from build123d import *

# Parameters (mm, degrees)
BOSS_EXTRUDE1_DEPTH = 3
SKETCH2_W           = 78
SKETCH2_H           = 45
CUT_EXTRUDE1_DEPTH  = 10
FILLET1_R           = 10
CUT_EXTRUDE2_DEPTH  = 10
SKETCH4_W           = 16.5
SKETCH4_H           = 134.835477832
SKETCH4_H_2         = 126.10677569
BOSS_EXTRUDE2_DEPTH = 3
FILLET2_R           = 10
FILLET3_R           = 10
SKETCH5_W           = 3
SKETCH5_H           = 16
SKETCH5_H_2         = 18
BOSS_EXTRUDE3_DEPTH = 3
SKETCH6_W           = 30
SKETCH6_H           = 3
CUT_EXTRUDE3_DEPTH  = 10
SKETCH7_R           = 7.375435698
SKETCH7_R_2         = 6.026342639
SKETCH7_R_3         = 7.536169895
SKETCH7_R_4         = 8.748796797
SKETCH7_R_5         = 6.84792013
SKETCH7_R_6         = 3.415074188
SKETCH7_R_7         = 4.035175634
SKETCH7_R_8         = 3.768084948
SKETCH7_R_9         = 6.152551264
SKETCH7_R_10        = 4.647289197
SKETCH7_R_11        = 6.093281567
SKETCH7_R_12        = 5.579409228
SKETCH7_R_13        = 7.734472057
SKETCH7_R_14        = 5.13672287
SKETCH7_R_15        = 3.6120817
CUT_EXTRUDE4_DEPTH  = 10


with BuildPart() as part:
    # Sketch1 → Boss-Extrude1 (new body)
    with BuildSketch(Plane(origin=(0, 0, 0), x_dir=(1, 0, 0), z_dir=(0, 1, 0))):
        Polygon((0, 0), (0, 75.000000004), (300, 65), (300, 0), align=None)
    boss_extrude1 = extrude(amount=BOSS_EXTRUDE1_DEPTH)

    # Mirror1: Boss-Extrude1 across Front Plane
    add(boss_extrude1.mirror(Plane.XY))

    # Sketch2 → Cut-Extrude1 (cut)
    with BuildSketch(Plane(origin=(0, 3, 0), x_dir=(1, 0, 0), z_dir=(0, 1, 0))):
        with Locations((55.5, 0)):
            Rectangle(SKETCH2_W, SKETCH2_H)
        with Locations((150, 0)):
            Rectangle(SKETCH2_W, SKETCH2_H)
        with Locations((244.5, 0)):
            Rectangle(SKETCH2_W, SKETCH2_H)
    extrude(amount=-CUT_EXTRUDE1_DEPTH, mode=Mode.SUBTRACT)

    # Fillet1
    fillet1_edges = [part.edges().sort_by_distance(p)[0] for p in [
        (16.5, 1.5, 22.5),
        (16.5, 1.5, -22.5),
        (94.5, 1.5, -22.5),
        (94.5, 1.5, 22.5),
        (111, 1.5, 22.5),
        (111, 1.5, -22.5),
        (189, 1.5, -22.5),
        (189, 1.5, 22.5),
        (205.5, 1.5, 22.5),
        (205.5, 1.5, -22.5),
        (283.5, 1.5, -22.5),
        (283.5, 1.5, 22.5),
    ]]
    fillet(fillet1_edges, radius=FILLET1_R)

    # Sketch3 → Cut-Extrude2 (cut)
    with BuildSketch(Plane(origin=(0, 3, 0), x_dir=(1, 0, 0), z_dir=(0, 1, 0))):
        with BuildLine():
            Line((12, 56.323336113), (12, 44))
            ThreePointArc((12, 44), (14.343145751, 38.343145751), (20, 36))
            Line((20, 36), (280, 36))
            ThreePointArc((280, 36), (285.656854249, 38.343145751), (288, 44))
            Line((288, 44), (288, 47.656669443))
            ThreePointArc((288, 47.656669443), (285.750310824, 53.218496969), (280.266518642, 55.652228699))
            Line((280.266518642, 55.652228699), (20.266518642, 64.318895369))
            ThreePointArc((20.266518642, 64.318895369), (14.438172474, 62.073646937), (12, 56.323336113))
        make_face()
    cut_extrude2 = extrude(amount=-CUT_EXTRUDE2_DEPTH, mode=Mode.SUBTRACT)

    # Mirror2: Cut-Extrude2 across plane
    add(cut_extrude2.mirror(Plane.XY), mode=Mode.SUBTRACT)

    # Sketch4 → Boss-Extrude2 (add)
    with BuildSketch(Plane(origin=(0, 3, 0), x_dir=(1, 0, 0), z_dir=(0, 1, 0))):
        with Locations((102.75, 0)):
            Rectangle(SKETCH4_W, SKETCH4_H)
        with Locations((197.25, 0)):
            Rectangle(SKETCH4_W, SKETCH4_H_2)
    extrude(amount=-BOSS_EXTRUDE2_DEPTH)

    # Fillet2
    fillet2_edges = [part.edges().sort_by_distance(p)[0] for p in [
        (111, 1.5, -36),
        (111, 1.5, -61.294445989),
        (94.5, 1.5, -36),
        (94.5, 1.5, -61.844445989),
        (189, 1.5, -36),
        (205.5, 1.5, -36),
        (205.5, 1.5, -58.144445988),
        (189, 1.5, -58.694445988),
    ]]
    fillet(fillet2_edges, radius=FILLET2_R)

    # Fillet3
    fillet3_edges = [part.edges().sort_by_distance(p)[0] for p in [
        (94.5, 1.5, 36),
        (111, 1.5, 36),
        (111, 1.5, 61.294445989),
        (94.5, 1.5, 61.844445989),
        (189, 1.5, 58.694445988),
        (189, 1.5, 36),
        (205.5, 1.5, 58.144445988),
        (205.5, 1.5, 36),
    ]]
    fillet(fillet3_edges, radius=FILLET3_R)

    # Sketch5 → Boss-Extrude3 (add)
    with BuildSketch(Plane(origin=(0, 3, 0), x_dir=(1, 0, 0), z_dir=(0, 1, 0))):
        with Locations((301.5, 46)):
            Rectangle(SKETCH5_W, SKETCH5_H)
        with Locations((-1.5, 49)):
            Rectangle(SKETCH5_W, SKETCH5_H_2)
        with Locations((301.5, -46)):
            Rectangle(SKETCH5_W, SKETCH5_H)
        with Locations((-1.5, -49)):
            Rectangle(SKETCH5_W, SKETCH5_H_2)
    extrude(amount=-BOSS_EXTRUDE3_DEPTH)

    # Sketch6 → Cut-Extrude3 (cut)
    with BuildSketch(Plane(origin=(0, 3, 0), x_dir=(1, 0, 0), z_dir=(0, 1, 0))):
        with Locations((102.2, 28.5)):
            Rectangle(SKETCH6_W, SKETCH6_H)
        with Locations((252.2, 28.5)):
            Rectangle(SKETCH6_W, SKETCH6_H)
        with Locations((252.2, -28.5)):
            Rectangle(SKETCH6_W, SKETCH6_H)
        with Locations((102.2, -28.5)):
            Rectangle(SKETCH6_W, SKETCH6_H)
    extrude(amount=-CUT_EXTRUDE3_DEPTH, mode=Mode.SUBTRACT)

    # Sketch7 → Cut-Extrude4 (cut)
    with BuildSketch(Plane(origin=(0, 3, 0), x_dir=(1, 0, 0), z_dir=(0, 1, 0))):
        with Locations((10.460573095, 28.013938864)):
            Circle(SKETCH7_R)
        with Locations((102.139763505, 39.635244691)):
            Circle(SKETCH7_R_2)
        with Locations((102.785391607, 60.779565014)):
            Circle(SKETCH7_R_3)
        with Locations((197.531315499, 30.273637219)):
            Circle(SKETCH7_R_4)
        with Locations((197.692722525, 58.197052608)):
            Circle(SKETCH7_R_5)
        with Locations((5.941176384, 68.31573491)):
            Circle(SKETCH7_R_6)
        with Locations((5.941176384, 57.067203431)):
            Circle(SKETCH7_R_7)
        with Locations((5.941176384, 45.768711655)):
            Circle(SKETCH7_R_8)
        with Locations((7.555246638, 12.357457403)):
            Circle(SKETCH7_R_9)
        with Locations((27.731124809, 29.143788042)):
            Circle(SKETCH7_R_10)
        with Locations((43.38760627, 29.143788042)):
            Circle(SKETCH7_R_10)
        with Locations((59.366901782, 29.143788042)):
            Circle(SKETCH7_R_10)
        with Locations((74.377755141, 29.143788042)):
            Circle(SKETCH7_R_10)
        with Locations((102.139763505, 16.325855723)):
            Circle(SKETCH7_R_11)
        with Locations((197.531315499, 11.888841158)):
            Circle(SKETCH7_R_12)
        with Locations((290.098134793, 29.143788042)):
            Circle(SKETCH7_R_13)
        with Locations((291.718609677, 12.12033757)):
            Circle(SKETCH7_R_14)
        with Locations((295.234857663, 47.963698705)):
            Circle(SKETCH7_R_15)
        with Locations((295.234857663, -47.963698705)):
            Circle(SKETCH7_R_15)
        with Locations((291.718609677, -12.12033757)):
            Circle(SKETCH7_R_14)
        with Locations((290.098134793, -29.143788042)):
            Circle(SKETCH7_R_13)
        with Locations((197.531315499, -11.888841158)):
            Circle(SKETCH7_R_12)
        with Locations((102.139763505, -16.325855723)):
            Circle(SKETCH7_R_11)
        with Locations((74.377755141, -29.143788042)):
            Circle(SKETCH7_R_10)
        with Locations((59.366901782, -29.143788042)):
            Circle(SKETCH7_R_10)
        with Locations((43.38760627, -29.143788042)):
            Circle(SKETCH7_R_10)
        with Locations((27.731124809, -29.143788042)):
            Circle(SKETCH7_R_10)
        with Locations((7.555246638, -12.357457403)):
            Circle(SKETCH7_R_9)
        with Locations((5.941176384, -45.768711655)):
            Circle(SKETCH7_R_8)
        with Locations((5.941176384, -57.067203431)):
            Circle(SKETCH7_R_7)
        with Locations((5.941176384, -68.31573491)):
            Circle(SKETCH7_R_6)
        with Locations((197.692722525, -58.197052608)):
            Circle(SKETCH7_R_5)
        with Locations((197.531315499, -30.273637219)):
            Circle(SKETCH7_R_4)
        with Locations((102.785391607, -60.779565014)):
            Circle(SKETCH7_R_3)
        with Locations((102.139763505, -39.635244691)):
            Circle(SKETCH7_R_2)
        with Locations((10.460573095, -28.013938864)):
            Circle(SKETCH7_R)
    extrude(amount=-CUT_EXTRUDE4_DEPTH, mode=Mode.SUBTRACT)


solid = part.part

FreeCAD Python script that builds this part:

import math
import FreeCAD as App
import Part
import Sketcher


def edges_at(feature, points):
    """Names of the edges that pass closest to the given points."""
    edges = feature.Shape.Edges
    near = lambda p: min(range(len(edges)), key=lambda i: edges[i].distToShape(Part.Vertex(*p))[0])
    return sorted({f"Edge{near(p) + 1}" for p in points})


def add_polygon(sketch, points):
    """Adds a closed chain of lines whose ends are joined by coincident constraints."""
    first, n = sketch.GeometryCount, len(points)
    for a, b in zip(points, points[1:] + points[:1]):
        sketch.addGeometry(Part.LineSegment(App.Vector(*a, 0), App.Vector(*b, 0)), False)
    for i in range(n):
        sketch.addConstraint(Sketcher.Constraint("Coincident", first + i, 2, first + (i + 1) % n, 1))

doc = App.newDocument("Part")
body = doc.addObject("PartDesign::Body", "Body")

# Sketch on XZ plane
sketch1 = body.newObject("Sketcher::SketchObject", "Sketch")
sketch1.AttachmentSupport = (doc.getObject("XZ_Plane"), [""])
sketch1.MapMode = "FlatFace"
add_polygon(sketch1, [(0, -75), (0, 0), (300, 0), (300, -65)])  # lines 0-3
sketch1.addConstraint([
    Sketcher.Constraint("Vertical", 0),
    Sketcher.Constraint("Horizontal", 1),
    Sketcher.Constraint("Vertical", 2),
    Sketcher.Constraint("Coincident", 0, 2, -1, 1),
    Sketcher.Constraint("DistanceX", 1, 1, 1, 2, 300.0),
    Sketcher.Constraint("DistanceY", 0, 1, 0, 2, 75.0),
    Sketcher.Constraint("DistanceY", 2, 2, 2, 1, 65.0),
])
pad1 = body.newObject("PartDesign::Pad", "Pad")
pad1.Profile = sketch1
pad1.Length = 3
pad1.Reversed = True
doc.recompute()

mirrored = body.newObject("PartDesign::Mirrored", "Mirrored")
mirrored.Originals = [pad1]
mirrored.MirrorPlane = (doc.getObject("XY_Plane"), [""])
body.Tip = mirrored

# Sketch on XZ plane
sketch2 = body.newObject("Sketcher::SketchObject", "Sketch001")
sketch2.AttachmentSupport = (doc.getObject("XZ_Plane"), [""])
sketch2.MapMode = "FlatFace"
sketch2.AttachmentOffset = App.Placement(App.Vector(0, 0, -3), App.Rotation())
add_polygon(sketch2, [(16, -22), (16, 22), (94, 22), (94, -22)])  # lines 0-3
add_polygon(sketch2, [(111, -22), (111, 22), (189, 22), (189, -22)])  # lines 4-7
add_polygon(sketch2, [(206, -22), (206, 22), (284, 22), (284, -22)])  # lines 8-11
sketch2.addConstraint([
    Sketcher.Constraint("Vertical", 0),
    Sketcher.Constraint("Horizontal", 1),
    Sketcher.Constraint("Vertical", 2),
    Sketcher.Constraint("Horizontal", 3),
    Sketcher.Constraint("Vertical", 4),
    Sketcher.Constraint("Horizontal", 5),
    Sketcher.Constraint("Vertical", 6),
    Sketcher.Constraint("Horizontal", 7),
    Sketcher.Constraint("Vertical", 8),
    Sketcher.Constraint("Horizontal", 9),
    Sketcher.Constraint("Vertical", 10),
    Sketcher.Constraint("Horizontal", 11),
    Sketcher.Constraint("Horizontal", 1, 2, 4, 2),
    Sketcher.Constraint("Horizontal", 3, 2, 6, 2),
    Sketcher.Constraint("Horizontal", 5, 2, 8, 2),
    Sketcher.Constraint("Horizontal", 7, 2, 10, 2),
    Sketcher.Constraint("Equal", 3, 5),
    Sketcher.Constraint("Equal", 7, 9),
    Sketcher.Constraint("DistanceX", 1, 1, 1, 2, 78.0),
    Sketcher.Constraint("DistanceY", 0, 1, 0, 2, 45.0),
    Sketcher.Constraint("DistanceX", -1, 1, 4, 2, 111.0),
    Sketcher.Constraint("DistanceX", 1, 2, 8, 2, 111.0),
    Sketcher.Constraint("DistanceX", -1, 1, 0, 2, 16.5),
    Sketcher.Constraint("DistanceY", -1, 1, 0, 2, 22.5),
])
pocket1 = body.newObject("PartDesign::Pocket", "Pocket")
pocket1.Profile = sketch2
pocket1.Length = 10
pocket1.Reversed = True
doc.recompute()

fillet = body.newObject("PartDesign::Fillet", "Fillet")
fillet.Base = (pocket1, edges_at(pocket1, [
    (16.5, 1.5, 22.5),
    (16.5, 1.5, -22.5),
    (94.5, 1.5, -22.5),
    (94.5, 1.5, 22.5),
    (111, 1.5, 22.5),
    (111, 1.5, -22.5),
    (189, 1.5, -22.5),
    (189, 1.5, 22.5),
    (205.5, 1.5, 22.5),
    (205.5, 1.5, -22.5),
    (283.5, 1.5, -22.5),
    (283.5, 1.5, 22.5),
]))
fillet.Radius = 10

# Sketch on XZ plane
sketch3 = body.newObject("Sketcher::SketchObject", "Sketch002")
sketch3.AttachmentSupport = (doc.getObject("XZ_Plane"), [""])
sketch3.MapMode = "FlatFace"
sketch3.AttachmentOffset = App.Placement(App.Vector(0, 0, -3), App.Rotation())
sketch3.addGeometry([
    Part.LineSegment(App.Vector(12, -56.3, 0), App.Vector(12, -44, 0)),  # 0
    Part.ArcOfCircle(Part.Circle(App.Vector(20, -44, 0), App.Vector(0, 0, 1), 8), math.radians(90), math.radians(180)),  # 1
    Part.LineSegment(App.Vector(20, -36, 0), App.Vector(280, -36, 0)),  # 2
    Part.ArcOfCircle(Part.Circle(App.Vector(280, -44, 0), App.Vector(0, 0, 1), 8), math.radians(0), math.radians(90)),  # 3
    Part.LineSegment(App.Vector(288, -44, 0), App.Vector(288, -47.7, 0)),  # 4
    Part.ArcOfCircle(Part.Circle(App.Vector(280, -47.7, 0), App.Vector(0, 0, 1), 8), math.radians(-88), math.radians(0)),  # 5
    Part.LineSegment(App.Vector(280.3, -55.7, 0), App.Vector(20.3, -64.3, 0)),  # 6
    Part.ArcOfCircle(Part.Circle(App.Vector(20, -56.3, 0), App.Vector(0, 0, 1), 8), math.radians(180), math.radians(272)),  # 7
], False)
sketch3.addConstraint([
    Sketcher.Constraint("Tangent", 0, 2, 1, 2),
    Sketcher.Constraint("Tangent", 1, 1, 2, 1),
    Sketcher.Constraint("Tangent", 2, 2, 3, 2),
    Sketcher.Constraint("Tangent", 3, 1, 4, 1),
    Sketcher.Constraint("Tangent", 4, 2, 5, 2),
    Sketcher.Constraint("Tangent", 5, 1, 6, 1),
    Sketcher.Constraint("Tangent", 6, 2, 7, 2),
    Sketcher.Constraint("Tangent", 7, 1, 0, 1),
    Sketcher.Constraint("Vertical", 0),
    Sketcher.Constraint("Horizontal", 2),
    Sketcher.Constraint("Vertical", 4),
    Sketcher.Constraint("Equal", 1, 3),
    Sketcher.Constraint("Equal", 3, 5),
    Sketcher.Constraint("Equal", 5, 7),
    Sketcher.Constraint("Radius", 1, 8.0),
    Sketcher.Constraint("DistanceX", 2, 1, 2, 2, 260.0),
    Sketcher.Constraint("DistanceX", -1, 1, 1, 3, 20.0),
    Sketcher.Constraint("DistanceY", 1, 3, -1, 1, 44.0),
    Sketcher.Constraint("DistanceY", 4, 2, 4, 1, 3.656669),
    Sketcher.Constraint("DistanceY", 0, 1, 0, 2, 12.323336),
])
pocket2 = body.newObject("PartDesign::Pocket", "Pocket001")
pocket2.Profile = sketch3
pocket2.Length = 10
pocket2.Reversed = True
doc.recompute()

mirrored2 = body.newObject("PartDesign::Mirrored", "Mirrored001")
mirrored2.Originals = [pocket2]
mirrored2.MirrorPlane = (doc.getObject("XY_Plane"), [""])
body.Tip = mirrored2

# Sketch on XZ plane
sketch4 = body.newObject("Sketcher::SketchObject", "Sketch003")
sketch4.AttachmentSupport = (doc.getObject("XZ_Plane"), [""])
sketch4.MapMode = "FlatFace"
sketch4.AttachmentOffset = App.Placement(App.Vector(0, 0, -3), App.Rotation())
add_polygon(sketch4, [(94, -67), (94, 67), (111, 67), (111, -67)])  # lines 0-3
add_polygon(sketch4, [(189, -63), (189, 63), (206, 63), (206, -63)])  # lines 4-7
sketch4.addConstraint([
    Sketcher.Constraint("Vertical", 0),
    Sketcher.Constraint("Horizontal", 1),
    Sketcher.Constraint("Vertical", 2),
    Sketcher.Constraint("Horizontal", 3),
    Sketcher.Constraint("Vertical", 4),
    Sketcher.Constraint("Horizontal", 5),
    Sketcher.Constraint("Vertical", 6),
    Sketcher.Constraint("Horizontal", 7),
    Sketcher.Constraint("Equal", 3, 5),
    Sketcher.Constraint("DistanceX", 1, 1, 1, 2, 16.5),
    Sketcher.Constraint("DistanceX", -1, 1, 1, 2, 111.0),
    Sketcher.Constraint("DistanceX", -1, 1, 4, 2, 189.0),
    Sketcher.Constraint("DistanceY", 0, 1, 0, 2, 134.835478),
    Sketcher.Constraint("DistanceY", 4, 1, 4, 2, 126.106776),
    Sketcher.Constraint("DistanceY", -1, 1, 0, 2, 67.417739),
    Sketcher.Constraint("DistanceY", 4, 2, 1, 2, 4.364351),
])
pad2 = body.newObject("PartDesign::Pad", "Pad001")
pad2.Profile = sketch4
pad2.Length = 3
doc.recompute()

fillet2 = body.newObject("PartDesign::Fillet", "Fillet001")
fillet2.Base = (pad2, edges_at(pad2, [
    (111, 1.5, -36),
    (111, 1.5, -61.294),
    (94.5, 1.5, -36),
    (94.5, 1.5, -61.844),
    (189, 1.5, -36),
    (205.5, 1.5, -36),
    (205.5, 1.5, -58.144),
    (189, 1.5, -58.694),
]))
fillet2.Radius = 10
doc.recompute()

fillet3 = body.newObject("PartDesign::Fillet", "Fillet002")
fillet3.Base = (fillet2, edges_at(fillet2, [
    (94.5, 1.5, 36),
    (111, 1.5, 36),
    (111, 1.5, 61.294),
    (94.5, 1.5, 61.844),
    (189, 1.5, 58.694),
    (189, 1.5, 36),
    (205.5, 1.5, 58.144),
    (205.5, 1.5, 36),
]))
fillet3.Radius = 10

# Sketch on XZ plane
sketch5 = body.newObject("Sketcher::SketchObject", "Sketch004")
sketch5.AttachmentSupport = (doc.getObject("XZ_Plane"), [""])
sketch5.MapMode = "FlatFace"
sketch5.AttachmentOffset = App.Placement(App.Vector(0, 0, -3), App.Rotation())
add_polygon(sketch5, [(300, -54), (300, -38), (303, -38), (303, -54)])  # lines 0-3
add_polygon(sketch5, [(-3, -58), (-3, -40), (0, -40), (0, -58)])  # lines 4-7
add_polygon(sketch5, [(300, 38), (300, 54), (303, 54), (303, 38)])  # lines 8-11
add_polygon(sketch5, [(-3, 40), (-3, 58), (0, 58), (0, 40)])  # lines 12-15
sketch5.addConstraint([
    Sketcher.Constraint("Vertical", 0),
    Sketcher.Constraint("Horizontal", 1),
    Sketcher.Constraint("Vertical", 2),
    Sketcher.Constraint("Horizontal", 3),
    Sketcher.Constraint("Vertical", 4),
    Sketcher.Constraint("Horizontal", 5),
    Sketcher.Constraint("Vertical", 6),
    Sketcher.Constraint("Horizontal", 7),
    Sketcher.Constraint("Vertical", 8),
    Sketcher.Constraint("Horizontal", 9),
    Sketcher.Constraint("Vertical", 10),
    Sketcher.Constraint("Horizontal", 11),
    Sketcher.Constraint("Vertical", 12),
    Sketcher.Constraint("Horizontal", 13),
    Sketcher.Constraint("Vertical", 14),
    Sketcher.Constraint("Horizontal", 15),
    Sketcher.Constraint("Symmetric", 6, 2, 13, 2, -1, 1),
    Sketcher.Constraint("Symmetric", 3, 2, 8, 2, -1),
    Sketcher.Constraint("Symmetric", 1, 2, 10, 2, -1),
    Sketcher.Constraint("Symmetric", 5, 2, 14, 2, -1),
    Sketcher.Constraint("Vertical", 7, 2, 12, 2),
    Sketcher.Constraint("Equal", 3, 5),
    Sketcher.Constraint("DistanceX", 1, 1, 1, 2, 3.0),
    Sketcher.Constraint("DistanceY", 0, 1, 0, 2, 16.0),
    Sketcher.Constraint("DistanceY", 4, 1, 4, 2, 18.0),
    Sketcher.Constraint("DistanceX", -1, 1, 0, 2, 300.0),
    Sketcher.Constraint("DistanceY", 0, 2, -1, 1, 38.0),
    Sketcher.Constraint("DistanceY", 4, 2, -1, 1, 40.0),
])
pad3 = body.newObject("PartDesign::Pad", "Pad002")
pad3.Profile = sketch5
pad3.Length = 3

# Sketch on XZ plane
sketch6 = body.newObject("Sketcher::SketchObject", "Sketch005")
sketch6.AttachmentSupport = (doc.getObject("XZ_Plane"), [""])
sketch6.MapMode = "FlatFace"
sketch6.AttachmentOffset = App.Placement(App.Vector(0, 0, -3), App.Rotation())
add_polygon(sketch6, [(87.2, -30), (87.2, -27), (117.2, -27), (117.2, -30)])  # lines 0-3
add_polygon(sketch6, [(237.2, -30), (237.2, -27), (267.2, -27), (267.2, -30)])  # lines 4-7
add_polygon(sketch6, [(237.2, 27), (237.2, 30), (267.2, 30), (267.2, 27)])  # lines 8-11
add_polygon(sketch6, [(87.2, 27), (87.2, 30), (117.2, 30), (117.2, 27)])  # lines 12-15
sketch6.addConstraint([
    Sketcher.Constraint("Vertical", 0),
    Sketcher.Constraint("Horizontal", 1),
    Sketcher.Constraint("Vertical", 2),
    Sketcher.Constraint("Horizontal", 3),
    Sketcher.Constraint("Vertical", 4),
    Sketcher.Constraint("Horizontal", 5),
    Sketcher.Constraint("Vertical", 6),
    Sketcher.Constraint("Horizontal", 7),
    Sketcher.Constraint("Vertical", 8),
    Sketcher.Constraint("Horizontal", 9),
    Sketcher.Constraint("Vertical", 10),
    Sketcher.Constraint("Horizontal", 11),
    Sketcher.Constraint("Vertical", 12),
    Sketcher.Constraint("Horizontal", 13),
    Sketcher.Constraint("Vertical", 14),
    Sketcher.Constraint("Horizontal", 15),
    Sketcher.Constraint("Symmetric", 7, 2, 8, 2, -1),
    Sketcher.Constraint("Symmetric", 5, 2, 10, 2, -1),
    Sketcher.Constraint("Symmetric", 3, 2, 12, 2, -1),
    Sketcher.Constraint("Symmetric", 1, 2, 14, 2, -1),
    Sketcher.Constraint("Horizontal", 1, 2, 4, 2),
    Sketcher.Constraint("Horizontal", 3, 2, 6, 2),
    Sketcher.Constraint("Equal", 3, 5),
    Sketcher.Constraint("DistanceX", 1, 1, 1, 2, 30.0),
    Sketcher.Constraint("DistanceY", 0, 1, 0, 2, 3.0),
    Sketcher.Constraint("DistanceY", 0, 2, -1, 1, 27.0),
    Sketcher.Constraint("DistanceX", 1, 2, 4, 2, 120.0),
    Sketcher.Constraint("DistanceX", -1, 1, 0, 2, 87.2),
])
pocket3 = body.newObject("PartDesign::Pocket", "Pocket002")
pocket3.Profile = sketch6
pocket3.Length = 10
pocket3.Reversed = True

# Sketch on XZ plane
sketch7 = body.newObject("Sketcher::SketchObject", "Sketch006")
sketch7.AttachmentSupport = (doc.getObject("XZ_Plane"), [""])
sketch7.MapMode = "FlatFace"
sketch7.AttachmentOffset = App.Placement(App.Vector(0, 0, -3), App.Rotation())
sketch7.addGeometry([
    Part.Circle(App.Vector(10.5, -28, 0), App.Vector(0, 0, 1), 7.4),  # 0
    Part.Circle(App.Vector(102.1, -39.6, 0), App.Vector(0, 0, 1), 6),  # 1
    Part.Circle(App.Vector(102.8, -60.8, 0), App.Vector(0, 0, 1), 7.5),  # 2
    Part.Circle(App.Vector(197.5, -30.3, 0), App.Vector(0, 0, 1), 8.7),  # 3
    Part.Circle(App.Vector(197.7, -58.2, 0), App.Vector(0, 0, 1), 6.8),  # 4
    Part.Circle(App.Vector(5.9, -68.3, 0), App.Vector(0, 0, 1), 3.4),  # 5
    Part.Circle(App.Vector(5.9, -57.1, 0), App.Vector(0, 0, 1), 4),  # 6
    Part.Circle(App.Vector(5.9, -45.8, 0), App.Vector(0, 0, 1), 3.8),  # 7
    Part.Circle(App.Vector(7.6, -12.4, 0), App.Vector(0, 0, 1), 6.2),  # 8
    Part.Circle(App.Vector(27.7, -29.1, 0), App.Vector(0, 0, 1), 4.6),  # 9
    Part.Circle(App.Vector(43.4, -29.1, 0), App.Vector(0, 0, 1), 4.6),  # 10
    Part.Circle(App.Vector(59.4, -29.1, 0), App.Vector(0, 0, 1), 4.6),  # 11
    Part.Circle(App.Vector(74.4, -29.1, 0), App.Vector(0, 0, 1), 4.6),  # 12
    Part.Circle(App.Vector(102.1, -16.3, 0), App.Vector(0, 0, 1), 6.1),  # 13
    Part.Circle(App.Vector(197.5, -11.9, 0), App.Vector(0, 0, 1), 5.6),  # 14
    Part.Circle(App.Vector(290.1, -29.1, 0), App.Vector(0, 0, 1), 7.7),  # 15
    Part.Circle(App.Vector(291.7, -12.1, 0), App.Vector(0, 0, 1), 5.1),  # 16
    Part.Circle(App.Vector(295.2, -48, 0), App.Vector(0, 0, 1), 3.6),  # 17
    Part.Circle(App.Vector(295.2, 48, 0), App.Vector(0, 0, 1), 3.6),  # 18
    Part.Circle(App.Vector(291.7, 12.1, 0), App.Vector(0, 0, 1), 5.1),  # 19
    Part.Circle(App.Vector(290.1, 29.1, 0), App.Vector(0, 0, 1), 7.7),  # 20
    Part.Circle(App.Vector(197.5, 11.9, 0), App.Vector(0, 0, 1), 5.6),  # 21
    Part.Circle(App.Vector(102.1, 16.3, 0), App.Vector(0, 0, 1), 6.1),  # 22
    Part.Circle(App.Vector(74.4, 29.1, 0), App.Vector(0, 0, 1), 4.6),  # 23
    Part.Circle(App.Vector(59.4, 29.1, 0), App.Vector(0, 0, 1), 4.6),  # 24
    Part.Circle(App.Vector(43.4, 29.1, 0), App.Vector(0, 0, 1), 4.6),  # 25
    Part.Circle(App.Vector(27.7, 29.1, 0), App.Vector(0, 0, 1), 4.6),  # 26
    Part.Circle(App.Vector(7.6, 12.4, 0), App.Vector(0, 0, 1), 6.2),  # 27
    Part.Circle(App.Vector(5.9, 45.8, 0), App.Vector(0, 0, 1), 3.8),  # 28
    Part.Circle(App.Vector(5.9, 57.1, 0), App.Vector(0, 0, 1), 4),  # 29
    Part.Circle(App.Vector(5.9, 68.3, 0), App.Vector(0, 0, 1), 3.4),  # 30
    Part.Circle(App.Vector(197.7, 58.2, 0), App.Vector(0, 0, 1), 6.8),  # 31
    Part.Circle(App.Vector(197.5, 30.3, 0), App.Vector(0, 0, 1), 8.7),  # 32
    Part.Circle(App.Vector(102.8, 60.8, 0), App.Vector(0, 0, 1), 7.5),  # 33
    Part.Circle(App.Vector(102.1, 39.6, 0), App.Vector(0, 0, 1), 6),  # 34
    Part.Circle(App.Vector(10.5, 28, 0), App.Vector(0, 0, 1), 7.4),  # 35
], False)
sketch7.addConstraint([
    Sketcher.Constraint("Equal", 9, 10),
    Sketcher.Constraint("Equal", 10, 11),
    Sketcher.Constraint("Equal", 11, 12),
    Sketcher.Constraint("Equal", 17, 18),
    Sketcher.Constraint("Equal", 16, 19),
    Sketcher.Constraint("Equal", 15, 20),
    Sketcher.Constraint("Equal", 14, 21),
    Sketcher.Constraint("Equal", 13, 22),
    Sketcher.Constraint("Equal", 12, 23),
    Sketcher.Constraint("Equal", 23, 24),
    Sketcher.Constraint("Equal", 24, 25),
    Sketcher.Constraint("Equal", 25, 26),
    Sketcher.Constraint("Equal", 8, 27),
    Sketcher.Constraint("Equal", 7, 28),
    Sketcher.Constraint("Equal", 6, 29),
    Sketcher.Constraint("Equal", 5, 30),
    Sketcher.Constraint("Equal", 4, 31),
    Sketcher.Constraint("Equal", 3, 32),
    Sketcher.Constraint("Equal", 2, 33),
    Sketcher.Constraint("Equal", 1, 34),
    Sketcher.Constraint("Equal", 0, 35),
    Sketcher.Constraint("Symmetric", 17, 3, 18, 3, -1),
    Sketcher.Constraint("Symmetric", 16, 3, 19, 3, -1),
    Sketcher.Constraint("Symmetric", 15, 3, 20, 3, -1),
    Sketcher.Constraint("Symmetric", 14, 3, 21, 3, -1),
    Sketcher.Constraint("Symmetric", 13, 3, 22, 3, -1),
    Sketcher.Constraint("Symmetric", 12, 3, 23, 3, -1),
    Sketcher.Constraint("Symmetric", 11, 3, 24, 3, -1),
    Sketcher.Constraint("Symmetric", 10, 3, 25, 3, -1),
    Sketcher.Constraint("Symmetric", 9, 3, 26, 3, -1),
    Sketcher.Constraint("Symmetric", 8, 3, 27, 3, -1),
    Sketcher.Constraint("Symmetric", 7, 3, 28, 3, -1),
    Sketcher.Constraint("Symmetric", 6, 3, 29, 3, -1),
    Sketcher.Constraint("Symmetric", 5, 3, 30, 3, -1),
    Sketcher.Constraint("Symmetric", 4, 3, 31, 3, -1),
    Sketcher.Constraint("Symmetric", 3, 3, 32, 3, -1),
    Sketcher.Constraint("Symmetric", 2, 3, 33, 3, -1),
    Sketcher.Constraint("Symmetric", 1, 3, 34, 3, -1),
    Sketcher.Constraint("Symmetric", 0, 3, 35, 3, -1),
    Sketcher.Constraint("Horizontal", 9, 3, 10, 3),
    Sketcher.Constraint("Horizontal", 10, 3, 11, 3),
    Sketcher.Constraint("Horizontal", 11, 3, 12, 3),
    Sketcher.Constraint("Horizontal", 12, 3, 15, 3),
    Sketcher.Constraint("Vertical", 5, 3, 6, 3),
    Sketcher.Constraint("Vertical", 6, 3, 7, 3),
    Sketcher.Constraint("Vertical", 1, 3, 13, 3),
    Sketcher.Constraint("Vertical", 3, 3, 14, 3),
    Sketcher.Constraint("Diameter", 0, 14.750871),
    Sketcher.Constraint("Diameter", 2, 15.07234),
    Sketcher.Constraint("Diameter", 4, 13.69584),
    Sketcher.Constraint("Diameter", 5, 6.830148),
    Sketcher.Constraint("Diameter", 6, 8.070351),
    Sketcher.Constraint("Diameter", 7, 7.53617),
    Sketcher.Constraint("Diameter", 9, 9.294578),
    Sketcher.Constraint("Diameter", 14, 11.158818),
    Sketcher.Constraint("Diameter", 1, 12.052685),
    Sketcher.Constraint("Diameter", 3, 17.497594),
    Sketcher.Constraint("Diameter", 8, 12.305103),
    Sketcher.Constraint("Diameter", 13, 12.186563),
    Sketcher.Constraint("Diameter", 15, 15.468944),
    Sketcher.Constraint("Diameter", 16, 10.273446),
    Sketcher.Constraint("Diameter", 17, 7.224163),
    Sketcher.Constraint("DistanceX", -1, 1, 11, 3, 59.366902),
    Sketcher.Constraint("DistanceY", 17, 3, -1, 1, 47.963699),
    Sketcher.Constraint("DistanceY", 3, 3, 0, 3, 2.259698),
    Sketcher.Constraint("DistanceY", 3, 3, 16, 3, 18.1533),
    Sketcher.Constraint("DistanceY", 1, 3, 22, 3, 55.9611),
    Sketcher.Constraint("DistanceY", 0, 3, -1, 1, 28.013939),
    Sketcher.Constraint("DistanceX", -1, 1, 2, 3, 102.785392),
    Sketcher.Constraint("DistanceY", 7, 3, -1, 1, 45.768712),
    Sketcher.Constraint("DistanceY", 9, 3, -1, 1, 29.143788),
    Sketcher.Constraint("DistanceY", 14, 3, -1, 1, 11.888841),
    Sketcher.Constraint("DistanceX", -1, 1, 16, 3, 291.71861),
    Sketcher.Constraint("DistanceX", 0, 3, 1, 3, 91.67919),
    Sketcher.Constraint("DistanceX", 1, 3, 2, 3, 0.645628),
    Sketcher.Constraint("DistanceY", 2, 3, 1, 3, 21.14432),
    Sketcher.Constraint("DistanceX", 1, 3, 3, 3, 95.391552),
    Sketcher.Constraint("DistanceX", 2, 3, 4, 3, 94.907331),
    Sketcher.Constraint("DistanceY", 5, 3, 2, 3, 7.53617),
    Sketcher.Constraint("DistanceX", 5, 3, 3, 3, 191.590139),
    Sketcher.Constraint("DistanceY", 5, 3, 6, 3, 11.248531),
    Sketcher.Constraint("DistanceY", 4, 3, 6, 3, 1.129849),
    Sketcher.Constraint("DistanceY", 6, 3, 7, 3, 11.298492),
    Sketcher.Constraint("DistanceY", 0, 3, 8, 3, 15.656481),
    Sketcher.Constraint("DistanceX", 7, 3, 8, 3, 1.61407),
    Sketcher.Constraint("DistanceX", 0, 3, 9, 3, 17.270552),
    Sketcher.Constraint("DistanceX", 9, 3, 10, 3, 15.656481),
    Sketcher.Constraint("DistanceX", 12, 3, 1, 3, 27.762008),
    Sketcher.Constraint("DistanceX", 3, 3, 15, 3, 92.566819),
    Sketcher.Constraint("DistanceX", -1, 1, 17, 3, 295.234858),
])
pocket4 = body.newObject("PartDesign::Pocket", "Pocket003")
pocket4.Profile = sketch7
pocket4.Length = 10
pocket4.Reversed = True

doc.recompute()
